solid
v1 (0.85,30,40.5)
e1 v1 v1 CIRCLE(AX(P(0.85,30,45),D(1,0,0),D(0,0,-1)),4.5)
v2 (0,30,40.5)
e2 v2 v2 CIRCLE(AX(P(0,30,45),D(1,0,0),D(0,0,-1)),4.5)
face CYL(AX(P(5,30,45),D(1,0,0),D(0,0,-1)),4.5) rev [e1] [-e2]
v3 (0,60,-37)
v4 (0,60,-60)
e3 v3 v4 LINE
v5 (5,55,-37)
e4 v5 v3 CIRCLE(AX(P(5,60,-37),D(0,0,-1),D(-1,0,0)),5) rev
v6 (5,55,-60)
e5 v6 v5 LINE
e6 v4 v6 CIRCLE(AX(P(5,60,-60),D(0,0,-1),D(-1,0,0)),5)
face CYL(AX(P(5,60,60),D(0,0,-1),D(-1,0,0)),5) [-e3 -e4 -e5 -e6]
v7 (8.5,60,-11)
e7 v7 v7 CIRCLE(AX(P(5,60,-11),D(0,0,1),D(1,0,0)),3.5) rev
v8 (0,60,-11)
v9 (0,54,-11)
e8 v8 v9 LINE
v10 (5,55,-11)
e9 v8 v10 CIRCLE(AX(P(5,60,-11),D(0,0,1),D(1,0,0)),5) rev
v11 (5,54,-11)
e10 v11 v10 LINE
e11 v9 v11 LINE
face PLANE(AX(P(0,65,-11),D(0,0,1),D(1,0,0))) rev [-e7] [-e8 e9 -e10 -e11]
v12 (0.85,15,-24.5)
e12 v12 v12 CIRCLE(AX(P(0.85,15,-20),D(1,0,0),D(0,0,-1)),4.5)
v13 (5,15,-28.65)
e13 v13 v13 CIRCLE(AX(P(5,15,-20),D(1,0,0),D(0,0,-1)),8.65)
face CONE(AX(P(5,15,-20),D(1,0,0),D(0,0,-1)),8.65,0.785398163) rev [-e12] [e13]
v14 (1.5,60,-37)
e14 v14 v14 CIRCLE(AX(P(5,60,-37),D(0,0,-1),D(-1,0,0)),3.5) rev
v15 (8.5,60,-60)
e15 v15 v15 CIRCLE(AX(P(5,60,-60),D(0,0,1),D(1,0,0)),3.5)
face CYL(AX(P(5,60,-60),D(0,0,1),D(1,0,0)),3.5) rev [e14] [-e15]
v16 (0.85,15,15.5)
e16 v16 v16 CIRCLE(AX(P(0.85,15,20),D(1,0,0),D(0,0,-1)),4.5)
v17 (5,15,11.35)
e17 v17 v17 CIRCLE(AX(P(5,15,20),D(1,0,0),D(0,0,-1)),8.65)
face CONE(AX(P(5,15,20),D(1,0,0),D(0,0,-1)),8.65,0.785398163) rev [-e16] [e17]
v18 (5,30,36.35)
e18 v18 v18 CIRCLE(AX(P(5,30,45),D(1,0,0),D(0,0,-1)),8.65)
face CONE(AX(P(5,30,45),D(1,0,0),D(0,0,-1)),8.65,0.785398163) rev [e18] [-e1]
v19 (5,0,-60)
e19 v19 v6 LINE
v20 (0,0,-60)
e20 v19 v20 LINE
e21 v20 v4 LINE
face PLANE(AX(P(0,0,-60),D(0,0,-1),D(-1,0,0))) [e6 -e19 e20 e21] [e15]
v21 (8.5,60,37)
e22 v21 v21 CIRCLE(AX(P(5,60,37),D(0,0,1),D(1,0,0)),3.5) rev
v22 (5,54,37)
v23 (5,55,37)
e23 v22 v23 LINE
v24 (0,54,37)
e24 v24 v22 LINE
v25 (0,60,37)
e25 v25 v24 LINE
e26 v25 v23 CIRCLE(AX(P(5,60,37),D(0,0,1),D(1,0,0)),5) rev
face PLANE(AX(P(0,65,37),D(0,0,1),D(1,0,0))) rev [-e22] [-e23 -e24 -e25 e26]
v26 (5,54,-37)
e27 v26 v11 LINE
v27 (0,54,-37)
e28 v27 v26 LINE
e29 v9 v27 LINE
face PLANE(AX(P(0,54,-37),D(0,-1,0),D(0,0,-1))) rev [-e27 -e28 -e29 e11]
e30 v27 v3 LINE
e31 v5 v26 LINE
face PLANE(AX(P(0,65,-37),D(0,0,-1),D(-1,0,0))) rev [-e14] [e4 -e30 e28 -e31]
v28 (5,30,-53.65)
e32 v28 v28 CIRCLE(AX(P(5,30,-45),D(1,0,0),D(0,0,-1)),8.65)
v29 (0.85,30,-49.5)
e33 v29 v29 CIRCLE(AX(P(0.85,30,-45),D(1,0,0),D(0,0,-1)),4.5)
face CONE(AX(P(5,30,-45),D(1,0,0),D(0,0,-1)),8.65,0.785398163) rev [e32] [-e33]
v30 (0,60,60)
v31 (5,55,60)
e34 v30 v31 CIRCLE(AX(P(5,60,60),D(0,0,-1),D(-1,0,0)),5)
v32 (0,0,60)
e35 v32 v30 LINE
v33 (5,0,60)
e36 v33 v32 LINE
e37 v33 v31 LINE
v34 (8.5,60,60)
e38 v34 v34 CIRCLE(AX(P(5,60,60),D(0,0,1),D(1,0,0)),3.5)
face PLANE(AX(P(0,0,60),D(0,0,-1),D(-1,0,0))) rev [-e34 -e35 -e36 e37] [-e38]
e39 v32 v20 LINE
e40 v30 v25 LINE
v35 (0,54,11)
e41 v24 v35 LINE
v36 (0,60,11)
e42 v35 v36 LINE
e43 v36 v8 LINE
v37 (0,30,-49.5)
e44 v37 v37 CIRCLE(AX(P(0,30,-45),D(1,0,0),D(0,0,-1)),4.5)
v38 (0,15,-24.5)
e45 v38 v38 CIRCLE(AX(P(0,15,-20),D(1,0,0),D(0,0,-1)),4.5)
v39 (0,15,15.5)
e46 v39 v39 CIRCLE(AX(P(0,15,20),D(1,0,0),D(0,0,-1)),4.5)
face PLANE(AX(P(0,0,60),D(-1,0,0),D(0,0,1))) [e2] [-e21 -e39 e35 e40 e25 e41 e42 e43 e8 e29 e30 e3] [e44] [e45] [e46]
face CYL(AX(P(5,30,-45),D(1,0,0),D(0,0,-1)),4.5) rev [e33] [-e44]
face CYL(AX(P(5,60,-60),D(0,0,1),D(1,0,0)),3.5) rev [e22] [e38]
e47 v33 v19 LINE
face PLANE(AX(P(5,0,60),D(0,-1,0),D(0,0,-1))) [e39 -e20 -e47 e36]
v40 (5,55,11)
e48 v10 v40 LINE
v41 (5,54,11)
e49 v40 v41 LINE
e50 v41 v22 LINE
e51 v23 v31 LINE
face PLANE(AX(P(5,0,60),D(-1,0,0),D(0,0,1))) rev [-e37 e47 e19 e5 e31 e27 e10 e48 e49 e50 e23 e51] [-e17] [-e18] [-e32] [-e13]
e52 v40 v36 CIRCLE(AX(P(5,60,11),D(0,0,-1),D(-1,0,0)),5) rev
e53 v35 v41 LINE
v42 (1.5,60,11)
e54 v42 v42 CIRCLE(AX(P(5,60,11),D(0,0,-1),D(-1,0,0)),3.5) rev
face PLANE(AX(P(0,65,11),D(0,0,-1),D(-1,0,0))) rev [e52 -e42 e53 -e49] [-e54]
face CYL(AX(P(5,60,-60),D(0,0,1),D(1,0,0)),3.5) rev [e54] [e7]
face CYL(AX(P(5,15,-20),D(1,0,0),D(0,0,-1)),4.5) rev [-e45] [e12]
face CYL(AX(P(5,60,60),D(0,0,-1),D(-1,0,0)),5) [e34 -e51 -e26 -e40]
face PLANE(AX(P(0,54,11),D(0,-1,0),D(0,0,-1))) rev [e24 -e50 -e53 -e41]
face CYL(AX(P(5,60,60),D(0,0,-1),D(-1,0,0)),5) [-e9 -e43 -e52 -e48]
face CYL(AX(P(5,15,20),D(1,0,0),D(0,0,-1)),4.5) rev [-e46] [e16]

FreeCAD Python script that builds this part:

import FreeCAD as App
import Part
import Sketcher
Q = App.Units.Quantity


def add_polygon(sketch, points):
    """Adds a closed chain of lines whose ends are joined by coincident constraints."""
    first, n = sketch.GeometryCount, len(points)
    for a, b in zip(points, points[1:] + points[:1]):
        sketch.addGeometry(Part.LineSegment(App.Vector(*a, 0), App.Vector(*b, 0)), False)
    for i in range(n):
        sketch.addConstraint(Sketcher.Constraint("Coincident", first + i, 2, first + (i + 1) % n, 1))

doc = App.newDocument("Part")
body = doc.addObject("PartDesign::Body", "Body")

sketch1 = body.newObject("Sketcher::SketchObject", "Sketch")
sketch1.AttachmentSupport = (doc.getObject("XY_Plane"), [""])
sketch1.MapMode = "FlatFace"
add_polygon(sketch1, [(0, 60), (0, 0), (5, 0), (5, 60)])
sketch1.addConstraint([
    Sketcher.Constraint("Vertical", 0),
    Sketcher.Constraint("Horizontal", 1),
    Sketcher.Constraint("Vertical", 2),
    Sketcher.Constraint("Horizontal", 3),
    Sketcher.Constraint("Coincident", 0, 2, -1, 1),
    Sketcher.Constraint("DistanceX", 1, 1, 1, 2, Q("5 mm")),
    Sketcher.Constraint("DistanceY", 0, 2, 0, 1, Q("60 mm")),
])
pad1 = body.newObject("PartDesign::Pad", "Pad")
pad1.Profile = sketch1
pad1.Length = 120
pad1.Midplane = True

sketch2 = body.newObject("Sketcher::SketchObject", "Sketch001")
sketch2.AttachmentSupport = (doc.getObject("XY_Plane"), [""])
sketch2.MapMode = "FlatFace"
sketch2.AttachmentOffset = App.Placement(App.Vector(0, 0, -60), App.Rotation())
sketch2.addGeometry(Part.Circle(App.Vector(5, 60, 0), App.Vector(0, 0, 1), 5), False)
sketch2.addConstraint([
    Sketcher.Constraint("Diameter", 0, Q("10 mm")),
    Sketcher.Constraint("DistanceX", -1, 1, 0, 3, Q("5 mm")),
    Sketcher.Constraint("DistanceY", -1, 1, 0, 3, Q("60 mm")),
])

sketch3 = body.newObject("Sketcher::SketchObject", "Sketch002")
sketch3.AttachmentSupport = (doc.getObject("XZ_Plane"), [""])
sketch3.MapMode = "FlatFace"
sketch3.AttachmentOffset = App.Placement(App.Vector(0, 0, -60), App.Rotation())
sketch3.addGeometry(Part.LineSegment(App.Vector(5, 60, 0), App.Vector(5, -60, 0)), False)
sketch3.addConstraint([
    Sketcher.Constraint("Vertical", 0),
    Sketcher.Constraint("DistanceY", 0, 2, 0, 1, Q("120 mm")),
    Sketcher.Constraint("DistanceX", -1, 1, 0, 1, Q("5 mm")),
    Sketcher.Constraint("DistanceY", -1, 1, 0, 1, Q("60 mm")),
])
doc.recompute()

additivepipe = body.newObject("PartDesign::AdditivePipe", "AdditivePipe")
additivepipe.Profile = sketch2
additivepipe.Spine = (sketch3, ["Edge1"])

sketch4 = body.newObject("Sketcher::SketchObject", "Sketch003")
sketch4.AttachmentSupport = (doc.getObject("XY_Plane"), [""])
sketch4.MapMode = "FlatFace"
sketch4.AttachmentOffset = App.Placement(App.Vector(0, 0, 60), App.Rotation())
sketch4.addGeometry(Part.Circle(App.Vector(5, 60, 0), App.Vector(0, 0, 1), 3.5), False)
sketch4.addConstraint([
    Sketcher.Constraint("Diameter", 0, Q("7 mm")),
    Sketcher.Constraint("DistanceX", -1, 1, 0, 3, Q("5 mm")),
    Sketcher.Constraint("DistanceY", -1, 1, 0, 3, Q("60 mm")),
])
pocket1 = body.newObject("PartDesign::Pocket", "Pocket")
pocket1.Profile = sketch4
pocket1.Type = "ThroughAll"

sketch5 = body.newObject("Sketcher::SketchObject", "Sketch004")
sketch5.AttachmentSupport = (doc.getObject("XZ_Plane"), [""])
sketch5.MapMode = "FlatFace"
sketch5.AttachmentOffset = App.Placement(App.Vector(0, 0, -30), App.Rotation())
add_polygon(sketch5, [(0, 45), (5, 45), (5, 36.4), (0.8, 40.5), (0, 40.5)])
sketch5.addGeometry(Part.LineSegment(App.Vector(5, 45, 0), App.Vector(0, 45, 0)), True)
sketch5.addConstraint([
    Sketcher.Constraint("Horizontal", 0),
    Sketcher.Constraint("Vertical", 1),
    Sketcher.Constraint("Horizontal", 3),
    Sketcher.Constraint("Vertical", 4),
    Sketcher.Constraint("Horizontal", 5),
    Sketcher.Constraint("Coincident", 5, 1, 0, 2),
    Sketcher.Constraint("PointOnObject", 3, 2, -2),
    Sketcher.Constraint("PointOnObject", 5, 2, -2),
    Sketcher.Constraint("DistanceX", 0, 1, 0, 2, Q("5 mm")),
    Sketcher.Constraint("Angle", 2, Q("135 deg")),
    Sketcher.Constraint("DistanceY", 4, 1, 4, 2, Q("4.5 mm")),
    Sketcher.Constraint("DistanceY", -1, 1, 0, 2, Q("45 mm")),
    Sketcher.Constraint("DistanceX", 3, 2, 3, 1, Q("0.85 mm")),
])
groove = body.newObject("PartDesign::Groove", "Groove")
groove.Profile = sketch5
groove.ReferenceAxis = (sketch5, ["Axis0"])
groove.Angle = 360
doc.recompute()

datumline = body.newObject("PartDesign::Line", "DatumLine")
datumline.Placement = App.Placement(App.Vector(0, 0, 0), App.Rotation(App.Vector(0, 0, 1), App.Vector(0, -0.514495755, -0.857492926)))
linearpattern = body.newObject("PartDesign::LinearPattern", "LinearPattern")
linearpattern.Originals = [groove]
linearpattern.Direction = (datumline, [""])
linearpattern.Mode = "offset"
linearpattern.Offset = 29.154759
linearpattern.Occurrences = 2
body.Tip = linearpattern
doc.recompute()

mirrored = body.newObject("PartDesign::Mirrored", "Mirrored")
mirrored.Originals = [groove]
mirrored.MirrorPlane = (doc.getObject("XY_Plane"), [""])
body.Tip = mirrored

sketch6 = body.newObject("Sketcher::SketchObject", "Sketch005")
sketch6.AttachmentSupport = (doc.getObject("XZ_Plane"), [""])
sketch6.MapMode = "FlatFace"
sketch6.AttachmentOffset = App.Placement(App.Vector(0, 0, -15), App.Rotation())
add_polygon(sketch6, [(5, -20), (0, -20), (0, -15.5), (0.8, -15.5), (5, -11.3)])
sketch6.addGeometry(Part.LineSegment(App.Vector(0, -20, 0), App.Vector(5, -20, 0)), True)
sketch6.addConstraint([
    Sketcher.Constraint("Horizontal", 0),
    Sketcher.Constraint("Vertical", 1),
    Sketcher.Constraint("Horizontal", 2),
    Sketcher.Constraint("Vertical", 4),
    Sketcher.Constraint("Horizontal", 5),
    Sketcher.Constraint("Coincident", 5, 1, 0, 2),
    Sketcher.Constraint("PointOnObject", 0, 2, -2),
    Sketcher.Constraint("Vertical", 3, 2, 5, 2),
    Sketcher.Constraint("DistanceX", 0, 2, 0, 1, Q("5 mm")),
    Sketcher.Constraint("Angle", 3, Q("45 deg")),
    Sketcher.Constraint("DistanceY", 1, 1, 1, 2, Q("4.5 mm")),
    Sketcher.Constraint("DistanceY", 0, 2, -1, 1, Q("20 mm")),
    Sketcher.Constraint("DistanceX", 2, 1, 2, 2, Q("0.85 mm")),
])
groove2 = body.newObject("PartDesign::Groove", "Groove001")
groove2.Profile = sketch6
groove2.ReferenceAxis = (sketch6, ["Axis0"])
groove2.Angle = 360

sketch7 = body.newObject("Sketcher::SketchObject", "Sketch006")
sketch7.AttachmentSupport = (doc.getObject("YZ_Plane"), [""])
sketch7.MapMode = "FlatFace"
sketch7.AttachmentOffset = App.Placement(App.Vector(0, 0, 5), App.Rotation())
add_polygon(sketch7, [(65, -11), (54, -11), (54, -37), (65, -37)])
add_polygon(sketch7, [(65, 37), (54, 37), (54, 11), (65, 11)])
sketch7.addConstraint([
    Sketcher.Constraint("Horizontal", 0),
    Sketcher.Constraint("Vertical", 1),
    Sketcher.Constraint("Horizontal", 2),
    Sketcher.Constraint("Vertical", 3),
    Sketcher.Constraint("Horizontal", 4),
    Sketcher.Constraint("Vertical", 5),
    Sketcher.Constraint("Horizontal", 6),
    Sketcher.Constraint("Vertical", 7),
    Sketcher.Constraint("Symmetric", 1, 2, 4, 2, -1),
    Sketcher.Constraint("Symmetric", 3, 2, 6, 2, -1),
    Sketcher.Constraint("DistanceX", 0, 2, 0, 1, Q("11 mm")),
    Sketcher.Constraint("DistanceY", 1, 2, 1, 1, Q("26 mm")),
    Sketcher.Constraint("DistanceX", -1, 1, 0, 2, Q("54 mm")),
    Sketcher.Constraint("DistanceY", 0, 2, -1, 1, Q("11 mm")),
])
pocket2 = body.newObject("PartDesign::Pocket", "Pocket001")
pocket2.Profile = sketch7
pocket2.Type = "ThroughAll"
pocket2.Midplane = True

doc.recompute()
